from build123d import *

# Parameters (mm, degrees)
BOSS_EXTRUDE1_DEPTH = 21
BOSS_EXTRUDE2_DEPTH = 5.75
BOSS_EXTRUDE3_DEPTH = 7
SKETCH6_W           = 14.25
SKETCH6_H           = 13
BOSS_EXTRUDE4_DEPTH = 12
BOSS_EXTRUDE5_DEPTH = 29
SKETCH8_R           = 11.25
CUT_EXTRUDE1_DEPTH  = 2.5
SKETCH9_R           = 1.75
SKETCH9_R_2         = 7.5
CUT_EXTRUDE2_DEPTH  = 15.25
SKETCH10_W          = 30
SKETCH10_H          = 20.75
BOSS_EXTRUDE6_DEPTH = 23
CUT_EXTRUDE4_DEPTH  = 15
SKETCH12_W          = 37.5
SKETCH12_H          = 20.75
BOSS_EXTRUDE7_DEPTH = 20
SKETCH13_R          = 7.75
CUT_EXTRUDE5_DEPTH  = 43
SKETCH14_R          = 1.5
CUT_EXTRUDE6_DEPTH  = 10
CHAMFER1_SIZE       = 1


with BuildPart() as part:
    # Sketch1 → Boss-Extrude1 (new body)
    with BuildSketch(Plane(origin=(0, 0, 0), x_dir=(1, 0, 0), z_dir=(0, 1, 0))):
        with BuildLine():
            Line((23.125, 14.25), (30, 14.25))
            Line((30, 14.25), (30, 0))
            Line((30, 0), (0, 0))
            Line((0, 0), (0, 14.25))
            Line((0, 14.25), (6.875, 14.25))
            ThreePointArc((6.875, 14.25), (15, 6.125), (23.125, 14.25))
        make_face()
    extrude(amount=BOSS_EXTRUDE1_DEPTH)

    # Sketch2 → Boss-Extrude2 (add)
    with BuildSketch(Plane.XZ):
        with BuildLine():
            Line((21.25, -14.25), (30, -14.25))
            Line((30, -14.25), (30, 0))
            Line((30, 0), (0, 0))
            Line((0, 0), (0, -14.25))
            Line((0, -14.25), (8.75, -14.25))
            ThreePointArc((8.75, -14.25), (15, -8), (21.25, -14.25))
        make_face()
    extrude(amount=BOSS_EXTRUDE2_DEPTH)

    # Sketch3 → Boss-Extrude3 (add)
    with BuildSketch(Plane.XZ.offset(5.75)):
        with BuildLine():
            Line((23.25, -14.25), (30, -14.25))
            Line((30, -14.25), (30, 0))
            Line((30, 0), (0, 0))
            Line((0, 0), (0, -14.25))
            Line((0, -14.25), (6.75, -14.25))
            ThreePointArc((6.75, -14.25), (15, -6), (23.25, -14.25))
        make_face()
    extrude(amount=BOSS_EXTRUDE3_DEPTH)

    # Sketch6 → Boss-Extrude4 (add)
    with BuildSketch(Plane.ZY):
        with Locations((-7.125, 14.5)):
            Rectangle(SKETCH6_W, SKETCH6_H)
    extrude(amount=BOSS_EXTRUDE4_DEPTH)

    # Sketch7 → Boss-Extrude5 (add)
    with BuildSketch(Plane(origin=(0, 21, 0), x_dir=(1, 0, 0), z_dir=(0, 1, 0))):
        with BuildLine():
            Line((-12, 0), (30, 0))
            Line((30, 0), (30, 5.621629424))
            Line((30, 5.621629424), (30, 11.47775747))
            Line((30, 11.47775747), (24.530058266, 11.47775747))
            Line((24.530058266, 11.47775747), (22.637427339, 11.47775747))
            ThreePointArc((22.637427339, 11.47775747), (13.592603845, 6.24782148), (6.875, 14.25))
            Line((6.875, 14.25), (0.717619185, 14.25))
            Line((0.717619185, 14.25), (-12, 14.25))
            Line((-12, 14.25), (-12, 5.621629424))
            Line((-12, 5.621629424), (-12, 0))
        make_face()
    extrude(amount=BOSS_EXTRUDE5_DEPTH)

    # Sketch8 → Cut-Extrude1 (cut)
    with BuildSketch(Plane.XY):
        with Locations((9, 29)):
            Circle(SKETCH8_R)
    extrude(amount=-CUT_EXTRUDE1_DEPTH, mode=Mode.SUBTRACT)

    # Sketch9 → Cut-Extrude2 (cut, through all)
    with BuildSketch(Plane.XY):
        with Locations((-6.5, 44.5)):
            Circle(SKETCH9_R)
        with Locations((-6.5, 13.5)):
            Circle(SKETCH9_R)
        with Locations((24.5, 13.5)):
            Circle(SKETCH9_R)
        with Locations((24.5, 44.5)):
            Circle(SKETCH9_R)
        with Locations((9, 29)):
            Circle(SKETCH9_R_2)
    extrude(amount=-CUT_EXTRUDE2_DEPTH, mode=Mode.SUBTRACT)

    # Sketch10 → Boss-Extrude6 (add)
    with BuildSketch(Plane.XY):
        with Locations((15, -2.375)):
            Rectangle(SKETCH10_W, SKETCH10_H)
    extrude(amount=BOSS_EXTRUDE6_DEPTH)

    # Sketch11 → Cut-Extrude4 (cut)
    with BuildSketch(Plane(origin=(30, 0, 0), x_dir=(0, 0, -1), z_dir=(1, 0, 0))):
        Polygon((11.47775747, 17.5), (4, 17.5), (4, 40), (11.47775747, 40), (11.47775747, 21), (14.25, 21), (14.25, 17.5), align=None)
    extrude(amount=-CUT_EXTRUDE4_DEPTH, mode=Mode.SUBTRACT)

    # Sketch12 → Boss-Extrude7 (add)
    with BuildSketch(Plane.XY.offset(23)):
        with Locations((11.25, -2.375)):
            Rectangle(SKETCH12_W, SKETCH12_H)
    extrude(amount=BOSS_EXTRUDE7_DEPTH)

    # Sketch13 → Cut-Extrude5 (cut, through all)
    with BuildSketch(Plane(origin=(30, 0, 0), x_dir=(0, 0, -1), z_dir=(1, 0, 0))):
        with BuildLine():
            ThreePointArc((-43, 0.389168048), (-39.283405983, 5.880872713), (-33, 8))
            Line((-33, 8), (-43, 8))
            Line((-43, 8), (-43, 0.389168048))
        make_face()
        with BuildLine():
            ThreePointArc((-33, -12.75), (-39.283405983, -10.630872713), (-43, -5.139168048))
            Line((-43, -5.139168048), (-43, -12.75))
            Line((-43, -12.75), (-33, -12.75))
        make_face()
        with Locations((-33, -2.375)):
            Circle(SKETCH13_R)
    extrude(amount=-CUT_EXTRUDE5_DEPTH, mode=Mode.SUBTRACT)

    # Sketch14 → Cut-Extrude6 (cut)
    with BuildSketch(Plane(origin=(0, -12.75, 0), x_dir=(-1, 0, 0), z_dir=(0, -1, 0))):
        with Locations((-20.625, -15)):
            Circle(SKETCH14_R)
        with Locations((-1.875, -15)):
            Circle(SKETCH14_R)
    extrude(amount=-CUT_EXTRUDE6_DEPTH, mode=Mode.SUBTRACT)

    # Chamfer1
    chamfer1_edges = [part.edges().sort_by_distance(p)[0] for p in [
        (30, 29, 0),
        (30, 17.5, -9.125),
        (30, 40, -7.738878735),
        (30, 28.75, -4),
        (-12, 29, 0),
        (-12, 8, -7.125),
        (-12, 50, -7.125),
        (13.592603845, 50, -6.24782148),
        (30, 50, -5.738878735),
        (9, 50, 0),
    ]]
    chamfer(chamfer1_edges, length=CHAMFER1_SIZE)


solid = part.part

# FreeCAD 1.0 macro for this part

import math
import FreeCAD as App
import Part
import Sketcher


def edges_at(feature, points):
    """Names of the edges that pass closest to the given points."""
    edges = feature.Shape.Edges
    near = lambda p: min(range(len(edges)), key=lambda i: edges[i].distToShape(Part.Vertex(*p))[0])
    return sorted({f"Edge{near(p) + 1}" for p in points})

doc = App.newDocument("Part")
body = doc.addObject("PartDesign::Body", "Body")

# Sketch on XZ plane
sketch1 = body.newObject("Sketcher::SketchObject", "Sketch")
sketch1.AttachmentSupport = (doc.getObject("XZ_Plane"), [""])
sketch1.MapMode = "FlatFace"
sketch1.addGeometry([
    Part.LineSegment(App.Vector(30, -14, 0), App.Vector(23, -14, 0)),  # 0
    Part.ArcOfCircle(Part.Circle(App.Vector(15, -14, 0), App.Vector(0, 0, 1), 8), math.radians(0), math.radians(180)),  # 1
    Part.LineSegment(App.Vector(7, -14, 0), App.Vector(0, -14, 0)),  # 2
    Part.LineSegment(App.Vector(0, -14, 0), App.Vector(0, 0, 0)),  # 3
    Part.LineSegment(App.Vector(0, 0, 0), App.Vector(30, 0, 0)),  # 4
    Part.LineSegment(App.Vector(30, 0, 0), App.Vector(30, -14, 0)),  # 5
], False)
sketch1.addConstraint([
    Sketcher.Constraint("Coincident", 0, 2, 1, 1),
    Sketcher.Constraint("Coincident", 1, 2, 2, 1),
    Sketcher.Constraint("Coincident", 2, 2, 3, 1),
    Sketcher.Constraint("Coincident", 3, 2, 4, 1),
    Sketcher.Constraint("Coincident", 4, 2, 5, 1),
    Sketcher.Constraint("Coincident", 5, 2, 0, 1),
    Sketcher.Constraint("Horizontal", 0),
    Sketcher.Constraint("Horizontal", 2),
    Sketcher.Constraint("Vertical", 3),
    Sketcher.Constraint("Horizontal", 4),
    Sketcher.Constraint("Vertical", 5),
    Sketcher.Constraint("Coincident", 3, 2, -1, 1),
    Sketcher.Constraint("Horizontal", 1, 3, 0, 2),
    Sketcher.Constraint("Horizontal", 0, 2, 1, 2),
    Sketcher.Constraint("Equal", 0, 2),
    Sketcher.Constraint("DistanceX", 4, 1, 4, 2, 30.0),
    Sketcher.Constraint("Radius", 1, 8.125),
    Sketcher.Constraint("DistanceY", 3, 1, 3, 2, 14.25),
])
pad1 = body.newObject("PartDesign::Pad", "Pad")
pad1.Profile = sketch1
pad1.Length = 21
pad1.Reversed = True

# Sketch on XZ plane
sketch2 = body.newObject("Sketcher::SketchObject", "Sketch001")
sketch2.AttachmentSupport = (doc.getObject("XZ_Plane"), [""])
sketch2.MapMode = "FlatFace"
sketch2.addGeometry([
    Part.LineSegment(App.Vector(21, -14, 0), App.Vector(30, -14, 0)),  # 0
    Part.LineSegment(App.Vector(30, -14, 0), App.Vector(30, 0, 0)),  # 1
    Part.LineSegment(App.Vector(30, 0, 0), App.Vector(0, 0, 0)),  # 2
    Part.LineSegment(App.Vector(0, 0, 0), App.Vector(0, -14, 0)),  # 3
    Part.LineSegment(App.Vector(0, -14, 0), App.Vector(9, -14, 0)),  # 4
    Part.ArcOfCircle(Part.Circle(App.Vector(15, -14, 0), App.Vector(0, 0, 1), 6), math.radians(0), math.radians(180)),  # 5
], False)
sketch2.addConstraint([
    Sketcher.Constraint("Coincident", 0, 2, 1, 1),
    Sketcher.Constraint("Coincident", 1, 2, 2, 1),
    Sketcher.Constraint("Coincident", 2, 2, 3, 1),
    Sketcher.Constraint("Coincident", 3, 2, 4, 1),
    Sketcher.Constraint("Coincident", 4, 2, 5, 2),
    Sketcher.Constraint("Coincident", 5, 1, 0, 1),
    Sketcher.Constraint("Horizontal", 0),
    Sketcher.Constraint("Vertical", 1),
    Sketcher.Constraint("Horizontal", 2),
    Sketcher.Constraint("Vertical", 3),
    Sketcher.Constraint("Horizontal", 4),
    Sketcher.Constraint("Coincident", 2, 2, -1, 1),
    Sketcher.Constraint("Horizontal", 5, 3, 0, 2),
    Sketcher.Constraint("Horizontal", 0, 2, 3, 2),
    Sketcher.Constraint("Equal", 0, 4),
    Sketcher.Constraint("DistanceX", 2, 2, 2, 1, 30.0),
    Sketcher.Constraint("Radius", 5, 6.25),
    Sketcher.Constraint("DistanceY", 1, 1, 1, 2, 14.25),
])
pad2 = body.newObject("PartDesign::Pad", "Pad001")
pad2.Profile = sketch2
pad2.Length = 5.75

# Sketch on XZ plane
sketch3 = body.newObject("Sketcher::SketchObject", "Sketch002")
sketch3.AttachmentSupport = (doc.getObject("XZ_Plane"), [""])
sketch3.MapMode = "FlatFace"
sketch3.AttachmentOffset = App.Placement(App.Vector(0, 0, 5.75), App.Rotation())
sketch3.addGeometry([
    Part.LineSegment(App.Vector(23, -14, 0), App.Vector(30, -14, 0)),  # 0
    Part.LineSegment(App.Vector(30, -14, 0), App.Vector(30, 0, 0)),  # 1
    Part.LineSegment(App.Vector(30, 0, 0), App.Vector(0, 0, 0)),  # 2
    Part.LineSegment(App.Vector(0, 0, 0), App.Vector(0, -14, 0)),  # 3
    Part.LineSegment(App.Vector(0, -14, 0), App.Vector(7, -14, 0)),  # 4
    Part.ArcOfCircle(Part.Circle(App.Vector(15, -14, 0), App.Vector(0, 0, 1), 8), math.radians(0), math.radians(180)),  # 5
], False)
sketch3.addConstraint([
    Sketcher.Constraint("Coincident", 0, 2, 1, 1),
    Sketcher.Constraint("Coincident", 1, 2, 2, 1),
    Sketcher.Constraint("Coincident", 2, 2, 3, 1),
    Sketcher.Constraint("Coincident", 3, 2, 4, 1),
    Sketcher.Constraint("Coincident", 4, 2, 5, 2),
    Sketcher.Constraint("Coincident", 5, 1, 0, 1),
    Sketcher.Constraint("Horizontal", 0),
    Sketcher.Constraint("Vertical", 1),
    Sketcher.Constraint("Horizontal", 2),
    Sketcher.Constraint("Vertical", 3),
    Sketcher.Constraint("Horizontal", 4),
    Sketcher.Constraint("Coincident", 2, 2, -1, 1),
    Sketcher.Constraint("Horizontal", 5, 3, 0, 2),
    Sketcher.Constraint("Horizontal", 0, 2, 3, 2),
    Sketcher.Constraint("Equal", 0, 4),
    Sketcher.Constraint("DistanceX", 2, 2, 2, 1, 30.0),
    Sketcher.Constraint("Radius", 5, 8.25),
    Sketcher.Constraint("DistanceY", 1, 1, 1, 2, 14.25),
])
pad3 = body.newObject("PartDesign::Pad", "Pad002")
pad3.Profile = sketch3
pad3.Length = 7

# Sketch on YZ plane
sketch4 = body.newObject("Sketcher::SketchObject", "Sketch003")
sketch4.AttachmentSupport = (doc.getObject("YZ_Plane"), [""])
sketch4.MapMode = "FlatFace"
sketch4.addGeometry([
    Part.LineSegment(App.Vector(21, -14, 0), App.Vector(8, -14, 0)),
    Part.LineSegment(App.Vector(8, -14, 0), App.Vector(8, 0, 0)),
    Part.LineSegment(App.Vector(8, 0, 0), App.Vector(21, 0, 0)),
    Part.LineSegment(App.Vector(21, 0, 0), App.Vector(21, -14, 0)),
], False)
sketch4.addConstraint([
    Sketcher.Constraint("Coincident", 0, 2, 1, 1),
    Sketcher.Constraint("Coincident", 1, 2, 2, 1),
    Sketcher.Constraint("Coincident", 2, 2, 3, 1),
    Sketcher.Constraint("Coincident", 3, 2, 0, 1),
    Sketcher.Constraint("Horizontal", 0),
    Sketcher.Constraint("Vertical", 1),
    Sketcher.Constraint("Horizontal", 2),
    Sketcher.Constraint("Vertical", 3),
    Sketcher.Constraint("PointOnObject", 1, 2, -1),
    Sketcher.Constraint("DistanceX", 0, 2, 0, 1, 13.0),
    Sketcher.Constraint("DistanceX", -1, 1, 0, 2, 8.0),
    Sketcher.Constraint("DistanceY", 1, 1, 1, 2, 14.25),
])
pad4 = body.newObject("PartDesign::Pad", "Pad003")
pad4.Profile = sketch4
pad4.Length = 12
pad4.Reversed = True

# Sketch on XZ plane
sketch5 = body.newObject("Sketcher::SketchObject", "Sketch004")
sketch5.AttachmentSupport = (doc.getObject("XZ_Plane"), [""])
sketch5.MapMode = "FlatFace"
sketch5.AttachmentOffset = App.Placement(App.Vector(0, 0, -21), App.Rotation())
sketch5.addGeometry([
    Part.LineSegment(App.Vector(-12, 0, 0), App.Vector(30, 0, 0)),  # 0
    Part.LineSegment(App.Vector(30, 0, 0), App.Vector(30, -11, 0)),  # 1
    Part.LineSegment(App.Vector(30, -11, 0), App.Vector(23, -11, 0)),  # 2
    Part.ArcOfCircle(Part.Circle(App.Vector(15, -14, 0), App.Vector(0, 0, 1), 8), math.radians(20), math.radians(180)),  # 3
    Part.LineSegment(App.Vector(7, -14, 0), App.Vector(-12, -14, 0)),  # 4
    Part.LineSegment(App.Vector(-12, -14, 0), App.Vector(-12, 0, 0)),  # 5
], False)
sketch5.addConstraint([
    Sketcher.Constraint("Coincident", 0, 2, 1, 1),
    Sketcher.Constraint("Coincident", 1, 2, 2, 1),
    Sketcher.Constraint("Coincident", 2, 2, 3, 1),
    Sketcher.Constraint("Coincident", 3, 2, 4, 1),
    Sketcher.Constraint("Coincident", 4, 2, 5, 1),
    Sketcher.Constraint("Coincident", 5, 2, 0, 1),
    Sketcher.Constraint("Horizontal", 0),
    Sketcher.Constraint("Vertical", 1),
    Sketcher.Constraint("Horizontal", 2),
    Sketcher.Constraint("Horizontal", 4),
    Sketcher.Constraint("Vertical", 5),
    Sketcher.Constraint("PointOnObject", 0, 2, -1),
    Sketcher.Constraint("DistanceX", 0, 1, 0, 2, 42.0),
    Sketcher.Constraint("DistanceX", -1, 1, 3, 3, 15.0),
    Sketcher.Constraint("DistanceX", -1, 1, 0, 2, 30.0),
    Sketcher.Constraint("Radius", 3, 8.125),
    Sketcher.Constraint("DistanceY", 5, 1, 5, 2, 14.25),
    Sketcher.Constraint("DistanceY", 3, 3, -1, 1, 14.25),
    Sketcher.Constraint("DistanceX", 2, 2, 2, 1, 7.362573),
])
pad5 = body.newObject("PartDesign::Pad", "Pad004")
pad5.Profile = sketch5
pad5.Length = 29
pad5.Reversed = True

# Sketch on XY plane
sketch6 = body.newObject("Sketcher::SketchObject", "Sketch005")
sketch6.AttachmentSupport = (doc.getObject("XY_Plane"), [""])
sketch6.MapMode = "FlatFace"
sketch6.addGeometry(Part.Circle(App.Vector(9, 29, 0), App.Vector(0, 0, 1), 11), False)
sketch6.addConstraint([
    Sketcher.Constraint("Diameter", 0, 22.5),
    Sketcher.Constraint("DistanceX", -1, 1, 0, 3, 9.0),
    Sketcher.Constraint("DistanceY", -1, 1, 0, 3, 29.0),
])
pocket1 = body.newObject("PartDesign::Pocket", "Pocket")
pocket1.Profile = sketch6
pocket1.Length = 2.5

# Sketch on XY plane
sketch7 = body.newObject("Sketcher::SketchObject", "Sketch006")
sketch7.AttachmentSupport = (doc.getObject("XY_Plane"), [""])
sketch7.MapMode = "FlatFace"
sketch7.addGeometry([
    Part.Circle(App.Vector(-6.5, 44.5, 0), App.Vector(0, 0, 1), 1.8),  # 0
    Part.Circle(App.Vector(-6.5, 13.5, 0), App.Vector(0, 0, 1), 1.8),  # 1
    Part.Circle(App.Vector(24.5, 13.5, 0), App.Vector(0, 0, 1), 1.8),  # 2
    Part.Circle(App.Vector(24.5, 44.5, 0), App.Vector(0, 0, 1), 1.8),  # 3
    Part.Circle(App.Vector(9, 29, 0), App.Vector(0, 0, 1), 7.5),  # 4
], False)
sketch7.addConstraint([
    Sketcher.Constraint("Equal", 0, 1),
    Sketcher.Constraint("Equal", 1, 2),
    Sketcher.Constraint("Equal", 2, 3),
    Sketcher.Constraint("Horizontal", 1, 3, 2, 3),
    Sketcher.Constraint("Horizontal", 0, 3, 3, 3),
    Sketcher.Constraint("Vertical", 0, 3, 1, 3),
    Sketcher.Constraint("Vertical", 2, 3, 3, 3),
    Sketcher.Constraint("Diameter", 4, 15.0),
    Sketcher.Constraint("Diameter", 0, 3.5),
    Sketcher.Constraint("DistanceX", -1, 1, 4, 3, 9.0),
    Sketcher.Constraint("DistanceY", -1, 1, 4, 3, 29.0),
    Sketcher.Constraint("DistanceY", 1, 3, 0, 3, 31.0),
    Sketcher.Constraint("DistanceX", 1, 3, 2, 3, 31.0),
    Sketcher.Constraint("DistanceX", 0, 3, -1, 1, 6.5),
    Sketcher.Constraint("DistanceY", -1, 1, 0, 3, 44.5),
])
pocket2 = body.newObject("PartDesign::Pocket", "Pocket001")
pocket2.Profile = sketch7
pocket2.Type = "ThroughAll"

# Sketch on XY plane
sketch8 = body.newObject("Sketcher::SketchObject", "Sketch007")
sketch8.AttachmentSupport = (doc.getObject("XY_Plane"), [""])
sketch8.MapMode = "FlatFace"
sketch8.addGeometry([
    Part.LineSegment(App.Vector(0, 8, 0), App.Vector(0, -13, 0)),
    Part.LineSegment(App.Vector(0, -13, 0), App.Vector(30, -13, 0)),
    Part.LineSegment(App.Vector(30, -13, 0), App.Vector(30, 8, 0)),
    Part.LineSegment(App.Vector(30, 8, 0), App.Vector(0, 8, 0)),
], False)
sketch8.addConstraint([
    Sketcher.Constraint("Coincident", 0, 2, 1, 1),
    Sketcher.Constraint("Coincident", 1, 2, 2, 1),
    Sketcher.Constraint("Coincident", 2, 2, 3, 1),
    Sketcher.Constraint("Coincident", 3, 2, 0, 1),
    Sketcher.Constraint("Vertical", 0),
    Sketcher.Constraint("Horizontal", 1),
    Sketcher.Constraint("Vertical", 2),
    Sketcher.Constraint("Horizontal", 3),
    Sketcher.Constraint("PointOnObject", 0, 2, -2),
    Sketcher.Constraint("DistanceX", 1, 1, 1, 2, 30.0),
    Sketcher.Constraint("DistanceY", -1, 1, 2, 2, 8.0),
    Sketcher.Constraint("DistanceY", 0, 2, 0, 1, 20.75),
])
pad6 = body.newObject("PartDesign::Pad", "Pad005")
pad6.Profile = sketch8
pad6.Length = 23

# Sketch on YZ plane
sketch9 = body.newObject("Sketcher::SketchObject", "Sketch008")
sketch9.AttachmentSupport = (doc.getObject("YZ_Plane"), [""])
sketch9.MapMode = "FlatFace"
sketch9.AttachmentOffset = App.Placement(App.Vector(0, 0, 30), App.Rotation())
sketch9.addGeometry([
    Part.LineSegment(App.Vector(17.5, -4, 0), App.Vector(17.5, -14.2, 0)),  # 0
    Part.LineSegment(App.Vector(17.5, -14.2, 0), App.Vector(21, -14.2, 0)),  # 1
    Part.LineSegment(App.Vector(21, -14.2, 0), App.Vector(21, -11.5, 0)),  # 2
    Part.LineSegment(App.Vector(21, -11.5, 0), App.Vector(40, -11.5, 0)),  # 3
    Part.LineSegment(App.Vector(40, -11.5, 0), App.Vector(40, -4, 0)),  # 4
    Part.LineSegment(App.Vector(40, -4, 0), App.Vector(17.5, -4, 0)),  # 5
], False)
sketch9.addConstraint([
    Sketcher.Constraint("Coincident", 0, 2, 1, 1),
    Sketcher.Constraint("Coincident", 1, 2, 2, 1),
    Sketcher.Constraint("Coincident", 2, 2, 3, 1),
    Sketcher.Constraint("Coincident", 3, 2, 4, 1),
    Sketcher.Constraint("Coincident", 4, 2, 5, 1),
    Sketcher.Constraint("Coincident", 5, 2, 0, 1),
    Sketcher.Constraint("Vertical", 0),
    Sketcher.Constraint("Horizontal", 1),
    Sketcher.Constraint("Vertical", 2),
    Sketcher.Constraint("Horizontal", 3),
    Sketcher.Constraint("Vertical", 4),
    Sketcher.Constraint("Horizontal", 5),
    Sketcher.Constraint("DistanceX", 3, 1, 3, 2, 19.0),
    Sketcher.Constraint("DistanceX", 1, 1, 1, 2, 3.5),
    Sketcher.Constraint("DistanceX", -1, 1, 1, 2, 21.0),
    Sketcher.Constraint("DistanceY", 4, 2, -1, 1, 4.0),
    Sketcher.Constraint("DistanceY", 0, 2, 0, 1, 10.25),
    Sketcher.Constraint("DistanceY", 2, 1, 2, 2, 2.772243),
])
pocket3 = body.newObject("PartDesign::Pocket", "Pocket002")
pocket3.Profile = sketch9
pocket3.Length = 15

# Sketch on XY plane
sketch10 = body.newObject("Sketcher::SketchObject", "Sketch009")
sketch10.AttachmentSupport = (doc.getObject("XY_Plane"), [""])
sketch10.MapMode = "FlatFace"
sketch10.AttachmentOffset = App.Placement(App.Vector(0, 0, 23), App.Rotation())
sketch10.addGeometry([
    Part.LineSegment(App.Vector(-8, 8, 0), App.Vector(-8, -13, 0)),
    Part.LineSegment(App.Vector(-8, -13, 0), App.Vector(30, -13, 0)),
    Part.LineSegment(App.Vector(30, -13, 0), App.Vector(30, 8, 0)),
    Part.LineSegment(App.Vector(30, 8, 0), App.Vector(-8, 8, 0)),
], False)
sketch10.addConstraint([
    Sketcher.Constraint("Coincident", 0, 2, 1, 1),
    Sketcher.Constraint("Coincident", 1, 2, 2, 1),
    Sketcher.Constraint("Coincident", 2, 2, 3, 1),
    Sketcher.Constraint("Coincident", 3, 2, 0, 1),
    Sketcher.Constraint("Vertical", 0),
    Sketcher.Constraint("Horizontal", 1),
    Sketcher.Constraint("Vertical", 2),
    Sketcher.Constraint("Horizontal", 3),
    Sketcher.Constraint("DistanceX", 1, 1, 1, 2, 37.5),
    Sketcher.Constraint("DistanceX", -1, 1, 1, 2, 30.0),
    Sketcher.Constraint("DistanceY", -1, 1, 2, 2, 8.0),
    Sketcher.Constraint("DistanceY", 0, 2, 0, 1, 20.75),
])
pad7 = body.newObject("PartDesign::Pad", "Pad006")
pad7.Profile = sketch10
pad7.Length = 20

# Sketch on YZ plane
sketch11 = body.newObject("Sketcher::SketchObject", "Sketch010")
sketch11.AttachmentSupport = (doc.getObject("YZ_Plane"), [""])
sketch11.MapMode = "FlatFace"
sketch11.AttachmentOffset = App.Placement(App.Vector(0, 0, 30), App.Rotation())
sketch11.addGeometry([
    Part.ArcOfCircle(Part.Circle(App.Vector(-2, 33, 0), App.Vector(0, 0, 1), 10), math.radians(0), math.radians(75)),  # 0
    Part.LineSegment(App.Vector(8, 33, 0), App.Vector(8, 43, 0)),  # 1
    Part.LineSegment(App.Vector(8, 43, 0), App.Vector(0, 43, 0)),  # 2
    Part.ArcOfCircle(Part.Circle(App.Vector(-2, 33, 0), App.Vector(0, 0, 1), 10), math.radians(105), math.radians(180)),  # 3
    Part.LineSegment(App.Vector(-5, 43, 0), App.Vector(-13, 43, 0)),  # 4
    Part.LineSegment(App.Vector(-13, 43, 0), App.Vector(-13, 33, 0)),  # 5
    Part.Circle(App.Vector(-2, 33, 0), App.Vector(0, 0, 1), 8),  # 6
], False)
sketch11.addConstraint([
    Sketcher.Constraint("Tangent", 0, 1, 1, 1),
    Sketcher.Constraint("Coincident", 1, 2, 2, 1),
    Sketcher.Constraint("Coincident", 2, 2, 0, 2),
    Sketcher.Constraint("Coincident", 3, 1, 4, 1),
    Sketcher.Constraint("Coincident", 4, 2, 5, 1),
    Sketcher.Constraint("Tangent", 5, 2, 3, 2),
    Sketcher.Constraint("Vertical", 1),
    Sketcher.Constraint("Horizontal", 2),
    Sketcher.Constraint("Horizontal", 4),
    Sketcher.Constraint("Vertical", 5),
    Sketcher.Constraint("Coincident", 3, 3, 0, 3),
    Sketcher.Constraint("Coincident", 6, 3, 0, 3),
    Sketcher.Constraint("Equal", 0, 3),
    Sketcher.Constraint("Horizontal", 2, 2, 3, 1),
    Sketcher.Constraint("Diameter", 6, 15.5),
    Sketcher.Constraint("DistanceY", 1, 1, 1, 2, 10.0),
    Sketcher.Constraint("DistanceY", -1, 1, 0, 3, 33.0),
    Sketcher.Constraint("DistanceX", -1, 1, 0, 1, 8.0),
    Sketcher.Constraint("Radius", 0, 10.375),
])
pocket4 = body.newObject("PartDesign::Pocket", "Pocket003")
pocket4.Profile = sketch11
pocket4.Type = "ThroughAll"

# Sketch on XZ plane
sketch12 = body.newObject("Sketcher::SketchObject", "Sketch011")
sketch12.AttachmentSupport = (doc.getObject("XZ_Plane"), [""])
sketch12.MapMode = "FlatFace"
sketch12.AttachmentOffset = App.Placement(App.Vector(0, 0, 12.75), App.Rotation())
sketch12.addGeometry([
    Part.Circle(App.Vector(20.6, 15, 0), App.Vector(0, 0, 1), 1.5),
    Part.Circle(App.Vector(1.9, 15, 0), App.Vector(0, 0, 1), 1.5),
], False)
sketch12.addConstraint([
    Sketcher.Constraint("Equal", 0, 1),
    Sketcher.Constraint("Horizontal", 0, 3, 1, 3),
    Sketcher.Constraint("Diameter", 0, 3.0),
    Sketcher.Constraint("DistanceY", -1, 1, 0, 3, 15.0),
    Sketcher.Constraint("DistanceX", 1, 3, 0, 3, 18.75),
    Sketcher.Constraint("DistanceX", -1, 1, 0, 3, 20.625),
])
pocket5 = body.newObject("PartDesign::Pocket", "Pocket004")
pocket5.Profile = sketch12
pocket5.Length = 10
doc.recompute()

chamfer = body.newObject("PartDesign::Chamfer", "Chamfer")
chamfer.Base = (pocket5, edges_at(pocket5, [
    (30, 29, 0),
    (30, 17.5, -9.125),
    (30, 40, -7.739),
    (30, 28.75, -4),
    (-12, 29, 0),
    (-12, 8, -7.125),
    (-12, 50, -7.125),
    (13.593, 50, -6.248),
    (30, 50, -5.739),
    (9, 50, 0),
]))
chamfer.Size = 1

doc.recompute()
